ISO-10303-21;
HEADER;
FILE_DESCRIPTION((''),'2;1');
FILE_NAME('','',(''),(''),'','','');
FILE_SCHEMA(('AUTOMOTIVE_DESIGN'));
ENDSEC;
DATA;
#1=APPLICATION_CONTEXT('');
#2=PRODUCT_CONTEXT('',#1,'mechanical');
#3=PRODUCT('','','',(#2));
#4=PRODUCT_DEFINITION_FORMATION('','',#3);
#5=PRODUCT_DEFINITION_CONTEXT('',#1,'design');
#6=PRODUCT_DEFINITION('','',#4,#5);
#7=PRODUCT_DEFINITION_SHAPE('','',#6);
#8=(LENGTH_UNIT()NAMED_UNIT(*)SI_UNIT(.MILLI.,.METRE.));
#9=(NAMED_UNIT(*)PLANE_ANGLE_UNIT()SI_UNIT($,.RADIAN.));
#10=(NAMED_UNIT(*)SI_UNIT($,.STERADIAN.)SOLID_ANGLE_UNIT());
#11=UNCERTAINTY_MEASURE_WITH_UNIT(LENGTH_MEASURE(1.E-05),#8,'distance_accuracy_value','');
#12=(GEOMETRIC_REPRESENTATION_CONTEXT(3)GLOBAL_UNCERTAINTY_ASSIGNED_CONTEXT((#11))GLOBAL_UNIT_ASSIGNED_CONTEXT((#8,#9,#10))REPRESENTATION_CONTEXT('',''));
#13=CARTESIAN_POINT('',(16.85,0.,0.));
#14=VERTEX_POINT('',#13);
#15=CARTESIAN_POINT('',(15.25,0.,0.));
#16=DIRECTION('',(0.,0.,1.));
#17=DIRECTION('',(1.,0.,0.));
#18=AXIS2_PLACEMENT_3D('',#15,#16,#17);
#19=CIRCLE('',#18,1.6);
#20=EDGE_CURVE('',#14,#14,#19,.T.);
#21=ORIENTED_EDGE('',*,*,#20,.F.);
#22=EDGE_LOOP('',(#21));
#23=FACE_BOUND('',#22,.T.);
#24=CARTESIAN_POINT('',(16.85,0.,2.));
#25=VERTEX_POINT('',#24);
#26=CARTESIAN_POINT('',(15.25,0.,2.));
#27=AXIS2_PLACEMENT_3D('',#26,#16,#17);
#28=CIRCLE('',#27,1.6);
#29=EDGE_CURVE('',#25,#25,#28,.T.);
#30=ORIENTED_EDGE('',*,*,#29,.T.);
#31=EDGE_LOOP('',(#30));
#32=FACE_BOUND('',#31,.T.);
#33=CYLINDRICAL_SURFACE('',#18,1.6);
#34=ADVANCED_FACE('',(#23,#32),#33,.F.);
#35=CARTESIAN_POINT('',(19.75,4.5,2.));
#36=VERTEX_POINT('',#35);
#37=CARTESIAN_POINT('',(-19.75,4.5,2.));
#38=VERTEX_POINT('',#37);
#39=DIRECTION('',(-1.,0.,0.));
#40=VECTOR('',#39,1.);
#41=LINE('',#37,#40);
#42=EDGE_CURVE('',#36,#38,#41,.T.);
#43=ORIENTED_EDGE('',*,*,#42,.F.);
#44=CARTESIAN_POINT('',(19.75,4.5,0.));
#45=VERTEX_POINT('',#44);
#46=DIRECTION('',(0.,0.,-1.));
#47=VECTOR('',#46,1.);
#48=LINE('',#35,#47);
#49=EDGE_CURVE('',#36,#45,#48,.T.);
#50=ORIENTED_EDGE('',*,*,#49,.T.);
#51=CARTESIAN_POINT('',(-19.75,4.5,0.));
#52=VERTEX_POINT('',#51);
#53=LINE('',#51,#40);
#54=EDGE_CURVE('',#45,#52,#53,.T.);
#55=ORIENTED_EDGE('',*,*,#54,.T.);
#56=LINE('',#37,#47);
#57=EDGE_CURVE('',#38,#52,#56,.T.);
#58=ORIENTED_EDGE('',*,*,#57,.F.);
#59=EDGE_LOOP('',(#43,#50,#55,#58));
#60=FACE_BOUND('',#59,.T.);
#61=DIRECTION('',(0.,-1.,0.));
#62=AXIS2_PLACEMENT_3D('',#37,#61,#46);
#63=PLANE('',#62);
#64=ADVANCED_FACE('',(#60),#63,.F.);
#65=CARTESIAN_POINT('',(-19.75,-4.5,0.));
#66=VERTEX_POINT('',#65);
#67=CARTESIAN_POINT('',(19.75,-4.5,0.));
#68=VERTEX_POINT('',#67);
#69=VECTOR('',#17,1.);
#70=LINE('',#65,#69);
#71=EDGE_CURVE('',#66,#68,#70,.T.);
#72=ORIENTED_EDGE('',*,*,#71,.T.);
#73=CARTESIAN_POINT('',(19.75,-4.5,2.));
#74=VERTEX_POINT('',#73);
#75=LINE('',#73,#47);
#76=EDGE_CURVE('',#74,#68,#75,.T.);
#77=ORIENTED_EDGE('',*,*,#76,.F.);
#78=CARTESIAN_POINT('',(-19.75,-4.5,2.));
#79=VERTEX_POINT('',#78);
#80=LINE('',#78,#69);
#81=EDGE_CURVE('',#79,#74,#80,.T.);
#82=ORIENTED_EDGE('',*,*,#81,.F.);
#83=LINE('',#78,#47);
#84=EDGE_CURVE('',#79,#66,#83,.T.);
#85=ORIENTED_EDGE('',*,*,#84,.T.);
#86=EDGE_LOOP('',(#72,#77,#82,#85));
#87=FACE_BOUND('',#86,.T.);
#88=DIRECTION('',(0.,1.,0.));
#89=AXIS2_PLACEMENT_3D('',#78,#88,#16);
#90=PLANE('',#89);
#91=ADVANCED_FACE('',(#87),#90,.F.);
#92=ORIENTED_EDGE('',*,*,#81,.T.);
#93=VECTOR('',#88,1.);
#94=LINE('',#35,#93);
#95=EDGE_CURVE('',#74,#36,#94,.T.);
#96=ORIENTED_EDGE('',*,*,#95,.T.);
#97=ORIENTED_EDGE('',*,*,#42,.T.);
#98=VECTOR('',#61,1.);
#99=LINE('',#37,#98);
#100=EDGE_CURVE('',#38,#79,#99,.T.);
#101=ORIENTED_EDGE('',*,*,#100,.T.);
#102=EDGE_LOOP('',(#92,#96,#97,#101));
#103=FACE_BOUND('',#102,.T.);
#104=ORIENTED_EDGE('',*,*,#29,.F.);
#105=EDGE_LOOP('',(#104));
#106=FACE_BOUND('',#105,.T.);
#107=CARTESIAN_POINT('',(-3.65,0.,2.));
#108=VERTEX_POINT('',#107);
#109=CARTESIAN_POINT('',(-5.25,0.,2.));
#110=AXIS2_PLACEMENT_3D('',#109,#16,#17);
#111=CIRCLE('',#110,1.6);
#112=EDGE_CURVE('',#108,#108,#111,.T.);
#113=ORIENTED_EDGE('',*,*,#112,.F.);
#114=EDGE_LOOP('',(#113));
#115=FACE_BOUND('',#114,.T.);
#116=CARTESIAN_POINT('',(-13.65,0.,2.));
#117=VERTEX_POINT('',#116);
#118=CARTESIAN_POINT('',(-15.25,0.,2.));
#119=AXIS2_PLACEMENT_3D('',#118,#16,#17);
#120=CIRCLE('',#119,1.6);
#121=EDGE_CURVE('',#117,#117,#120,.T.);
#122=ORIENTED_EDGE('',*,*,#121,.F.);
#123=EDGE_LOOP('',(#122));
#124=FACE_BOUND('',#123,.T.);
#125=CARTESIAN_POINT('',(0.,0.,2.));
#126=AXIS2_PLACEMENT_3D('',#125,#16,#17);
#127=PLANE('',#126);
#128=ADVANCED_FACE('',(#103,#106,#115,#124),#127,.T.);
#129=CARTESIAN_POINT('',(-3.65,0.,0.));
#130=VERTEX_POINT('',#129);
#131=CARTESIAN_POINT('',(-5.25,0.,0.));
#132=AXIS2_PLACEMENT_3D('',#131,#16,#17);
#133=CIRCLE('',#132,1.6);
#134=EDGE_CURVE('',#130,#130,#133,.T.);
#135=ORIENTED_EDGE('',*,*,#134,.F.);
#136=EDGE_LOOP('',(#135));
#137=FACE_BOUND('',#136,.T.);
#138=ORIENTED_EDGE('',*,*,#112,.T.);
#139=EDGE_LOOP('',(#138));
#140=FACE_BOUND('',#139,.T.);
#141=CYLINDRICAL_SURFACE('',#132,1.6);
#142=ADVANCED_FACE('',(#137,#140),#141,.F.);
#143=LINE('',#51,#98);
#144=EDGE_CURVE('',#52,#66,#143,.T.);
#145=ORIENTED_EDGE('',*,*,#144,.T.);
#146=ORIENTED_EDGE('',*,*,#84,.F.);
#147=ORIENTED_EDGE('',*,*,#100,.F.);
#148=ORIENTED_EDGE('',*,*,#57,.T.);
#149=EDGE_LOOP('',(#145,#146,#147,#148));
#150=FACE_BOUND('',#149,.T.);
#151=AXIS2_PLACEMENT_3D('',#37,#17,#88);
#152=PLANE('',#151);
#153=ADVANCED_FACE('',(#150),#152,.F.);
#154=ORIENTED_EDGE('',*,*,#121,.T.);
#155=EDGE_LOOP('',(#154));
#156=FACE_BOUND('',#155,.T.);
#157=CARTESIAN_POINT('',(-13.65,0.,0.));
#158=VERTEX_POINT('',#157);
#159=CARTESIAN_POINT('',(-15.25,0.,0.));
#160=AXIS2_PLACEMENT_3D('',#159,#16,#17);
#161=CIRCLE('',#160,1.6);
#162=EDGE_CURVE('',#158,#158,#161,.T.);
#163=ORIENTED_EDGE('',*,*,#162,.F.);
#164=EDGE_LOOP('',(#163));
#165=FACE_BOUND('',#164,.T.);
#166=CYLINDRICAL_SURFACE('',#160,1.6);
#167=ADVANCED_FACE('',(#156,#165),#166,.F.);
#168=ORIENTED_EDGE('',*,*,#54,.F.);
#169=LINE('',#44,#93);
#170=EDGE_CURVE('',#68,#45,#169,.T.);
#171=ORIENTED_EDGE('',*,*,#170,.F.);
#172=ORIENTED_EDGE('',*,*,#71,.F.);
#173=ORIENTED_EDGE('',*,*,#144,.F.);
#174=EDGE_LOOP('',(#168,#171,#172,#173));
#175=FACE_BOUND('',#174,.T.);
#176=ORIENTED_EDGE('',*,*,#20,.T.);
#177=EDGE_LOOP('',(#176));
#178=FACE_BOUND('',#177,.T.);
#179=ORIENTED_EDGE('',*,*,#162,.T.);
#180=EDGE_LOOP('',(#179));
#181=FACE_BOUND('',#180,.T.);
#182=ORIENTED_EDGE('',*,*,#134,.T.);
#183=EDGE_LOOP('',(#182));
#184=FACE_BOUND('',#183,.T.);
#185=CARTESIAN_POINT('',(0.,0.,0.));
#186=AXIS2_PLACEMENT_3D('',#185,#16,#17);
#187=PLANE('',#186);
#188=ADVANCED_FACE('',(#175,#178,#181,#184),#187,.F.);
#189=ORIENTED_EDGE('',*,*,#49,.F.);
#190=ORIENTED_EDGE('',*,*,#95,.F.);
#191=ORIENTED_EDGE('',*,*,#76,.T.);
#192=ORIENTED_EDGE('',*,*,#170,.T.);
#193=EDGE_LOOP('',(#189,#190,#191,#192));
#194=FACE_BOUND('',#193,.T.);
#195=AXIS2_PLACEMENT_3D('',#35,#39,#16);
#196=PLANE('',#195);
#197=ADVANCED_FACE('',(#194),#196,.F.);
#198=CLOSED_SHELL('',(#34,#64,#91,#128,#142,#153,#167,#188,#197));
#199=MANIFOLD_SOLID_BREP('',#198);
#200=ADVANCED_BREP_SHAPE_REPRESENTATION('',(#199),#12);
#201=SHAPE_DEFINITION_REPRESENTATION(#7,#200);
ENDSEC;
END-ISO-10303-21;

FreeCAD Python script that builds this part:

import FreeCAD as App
import Part
import Sketcher


def add_polygon(sketch, points):
    """Adds a closed chain of lines whose ends are joined by coincident constraints."""
    first, n = sketch.GeometryCount, len(points)
    for a, b in zip(points, points[1:] + points[:1]):
        sketch.addGeometry(Part.LineSegment(App.Vector(*a, 0), App.Vector(*b, 0)), False)
    for i in range(n):
        sketch.addConstraint(Sketcher.Constraint("Coincident", first + i, 2, first + (i + 1) % n, 1))

doc = App.newDocument("Part")
params = doc.addObject("Spreadsheet::Sheet", "Params")
for row, (alias, value) in enumerate([
    ("sketch1_height", "9 mm"),
    ("sketch1_width", "39.5 mm"),
    ("pad1_length", "2 mm"),
    ("sketch2_diameter", "3.2 mm"),
    ("pocket1_length", "2 mm"),
], start=1):
    params.set(f"A{row}", alias)
    params.set(f"B{row}", "=" + value)
    params.setAlias(f"B{row}", alias)

body = doc.addObject("PartDesign::Body", "Body")

# Sketch on XY plane
sketch1 = body.newObject("Sketcher::SketchObject", "Sketch")
sketch1.AttachmentSupport = (doc.getObject("XY_Plane"), [""])
sketch1.MapMode = "FlatFace"
add_polygon(sketch1, [(-20, 4), (-20, -4), (20, -4), (20, 4)])  # lines 0-3
sketch1.addConstraint([
    Sketcher.Constraint("Vertical", 0),
    Sketcher.Constraint("Horizontal", 1),
    Sketcher.Constraint("Vertical", 2),
    Sketcher.Constraint("Horizontal", 3),
    Sketcher.Constraint("Symmetric", 0, 2, 2, 2, -1, 1),
    Sketcher.Constraint("DistanceY", 0, 2, 0, 1, 9.0),
    Sketcher.Constraint("DistanceX", 1, 1, 1, 2, 39.5),
])
sketch1.setExpression("Constraints[9]", "Params.sketch1_height")
sketch1.setExpression("Constraints[10]", "Params.sketch1_width")
pad1 = body.newObject("PartDesign::Pad", "Pad")
pad1.Profile = sketch1
pad1.setExpression("Length", "Params.pad1_length")

# Sketch on XY plane
sketch2 = body.newObject("Sketcher::SketchObject", "Sketch001")
sketch2.AttachmentSupport = (doc.getObject("XY_Plane"), [""])
sketch2.MapMode = "FlatFace"
sketch2.AttachmentOffset = App.Placement(App.Vector(0, 0, 2), App.Rotation())
sketch2.addGeometry([
    Part.Circle(App.Vector(-15.2, 0, 0), App.Vector(0, 0, 1), 1.6),
    Part.Circle(App.Vector(-5.2, 0, 0), App.Vector(0, 0, 1), 1.6),
    Part.Circle(App.Vector(15.2, 0, 0), App.Vector(0, 0, 1), 1.6),
], False)
sketch2.addConstraint([
    Sketcher.Constraint("Equal", 0, 1),
    Sketcher.Constraint("Equal", 1, 2),
    Sketcher.Constraint("Symmetric", 0, 3, 2, 3, -1, 1),
    Sketcher.Constraint("PointOnObject", 0, 3, -1),
    Sketcher.Constraint("PointOnObject", 1, 3, -1),
    Sketcher.Constraint("Diameter", 0, 3.2),
    Sketcher.Constraint("DistanceX", 0, 3, 1, 3, 10.0),
    Sketcher.Constraint("DistanceX", 1, 3, 2, 3, 20.5),
])
sketch2.setExpression("Constraints[5]", "Params.sketch2_diameter")
pocket1 = body.newObject("PartDesign::Pocket", "Pocket")
pocket1.Profile = sketch2
pocket1.setExpression("Length", "Params.pocket1_length")

doc.recompute()
